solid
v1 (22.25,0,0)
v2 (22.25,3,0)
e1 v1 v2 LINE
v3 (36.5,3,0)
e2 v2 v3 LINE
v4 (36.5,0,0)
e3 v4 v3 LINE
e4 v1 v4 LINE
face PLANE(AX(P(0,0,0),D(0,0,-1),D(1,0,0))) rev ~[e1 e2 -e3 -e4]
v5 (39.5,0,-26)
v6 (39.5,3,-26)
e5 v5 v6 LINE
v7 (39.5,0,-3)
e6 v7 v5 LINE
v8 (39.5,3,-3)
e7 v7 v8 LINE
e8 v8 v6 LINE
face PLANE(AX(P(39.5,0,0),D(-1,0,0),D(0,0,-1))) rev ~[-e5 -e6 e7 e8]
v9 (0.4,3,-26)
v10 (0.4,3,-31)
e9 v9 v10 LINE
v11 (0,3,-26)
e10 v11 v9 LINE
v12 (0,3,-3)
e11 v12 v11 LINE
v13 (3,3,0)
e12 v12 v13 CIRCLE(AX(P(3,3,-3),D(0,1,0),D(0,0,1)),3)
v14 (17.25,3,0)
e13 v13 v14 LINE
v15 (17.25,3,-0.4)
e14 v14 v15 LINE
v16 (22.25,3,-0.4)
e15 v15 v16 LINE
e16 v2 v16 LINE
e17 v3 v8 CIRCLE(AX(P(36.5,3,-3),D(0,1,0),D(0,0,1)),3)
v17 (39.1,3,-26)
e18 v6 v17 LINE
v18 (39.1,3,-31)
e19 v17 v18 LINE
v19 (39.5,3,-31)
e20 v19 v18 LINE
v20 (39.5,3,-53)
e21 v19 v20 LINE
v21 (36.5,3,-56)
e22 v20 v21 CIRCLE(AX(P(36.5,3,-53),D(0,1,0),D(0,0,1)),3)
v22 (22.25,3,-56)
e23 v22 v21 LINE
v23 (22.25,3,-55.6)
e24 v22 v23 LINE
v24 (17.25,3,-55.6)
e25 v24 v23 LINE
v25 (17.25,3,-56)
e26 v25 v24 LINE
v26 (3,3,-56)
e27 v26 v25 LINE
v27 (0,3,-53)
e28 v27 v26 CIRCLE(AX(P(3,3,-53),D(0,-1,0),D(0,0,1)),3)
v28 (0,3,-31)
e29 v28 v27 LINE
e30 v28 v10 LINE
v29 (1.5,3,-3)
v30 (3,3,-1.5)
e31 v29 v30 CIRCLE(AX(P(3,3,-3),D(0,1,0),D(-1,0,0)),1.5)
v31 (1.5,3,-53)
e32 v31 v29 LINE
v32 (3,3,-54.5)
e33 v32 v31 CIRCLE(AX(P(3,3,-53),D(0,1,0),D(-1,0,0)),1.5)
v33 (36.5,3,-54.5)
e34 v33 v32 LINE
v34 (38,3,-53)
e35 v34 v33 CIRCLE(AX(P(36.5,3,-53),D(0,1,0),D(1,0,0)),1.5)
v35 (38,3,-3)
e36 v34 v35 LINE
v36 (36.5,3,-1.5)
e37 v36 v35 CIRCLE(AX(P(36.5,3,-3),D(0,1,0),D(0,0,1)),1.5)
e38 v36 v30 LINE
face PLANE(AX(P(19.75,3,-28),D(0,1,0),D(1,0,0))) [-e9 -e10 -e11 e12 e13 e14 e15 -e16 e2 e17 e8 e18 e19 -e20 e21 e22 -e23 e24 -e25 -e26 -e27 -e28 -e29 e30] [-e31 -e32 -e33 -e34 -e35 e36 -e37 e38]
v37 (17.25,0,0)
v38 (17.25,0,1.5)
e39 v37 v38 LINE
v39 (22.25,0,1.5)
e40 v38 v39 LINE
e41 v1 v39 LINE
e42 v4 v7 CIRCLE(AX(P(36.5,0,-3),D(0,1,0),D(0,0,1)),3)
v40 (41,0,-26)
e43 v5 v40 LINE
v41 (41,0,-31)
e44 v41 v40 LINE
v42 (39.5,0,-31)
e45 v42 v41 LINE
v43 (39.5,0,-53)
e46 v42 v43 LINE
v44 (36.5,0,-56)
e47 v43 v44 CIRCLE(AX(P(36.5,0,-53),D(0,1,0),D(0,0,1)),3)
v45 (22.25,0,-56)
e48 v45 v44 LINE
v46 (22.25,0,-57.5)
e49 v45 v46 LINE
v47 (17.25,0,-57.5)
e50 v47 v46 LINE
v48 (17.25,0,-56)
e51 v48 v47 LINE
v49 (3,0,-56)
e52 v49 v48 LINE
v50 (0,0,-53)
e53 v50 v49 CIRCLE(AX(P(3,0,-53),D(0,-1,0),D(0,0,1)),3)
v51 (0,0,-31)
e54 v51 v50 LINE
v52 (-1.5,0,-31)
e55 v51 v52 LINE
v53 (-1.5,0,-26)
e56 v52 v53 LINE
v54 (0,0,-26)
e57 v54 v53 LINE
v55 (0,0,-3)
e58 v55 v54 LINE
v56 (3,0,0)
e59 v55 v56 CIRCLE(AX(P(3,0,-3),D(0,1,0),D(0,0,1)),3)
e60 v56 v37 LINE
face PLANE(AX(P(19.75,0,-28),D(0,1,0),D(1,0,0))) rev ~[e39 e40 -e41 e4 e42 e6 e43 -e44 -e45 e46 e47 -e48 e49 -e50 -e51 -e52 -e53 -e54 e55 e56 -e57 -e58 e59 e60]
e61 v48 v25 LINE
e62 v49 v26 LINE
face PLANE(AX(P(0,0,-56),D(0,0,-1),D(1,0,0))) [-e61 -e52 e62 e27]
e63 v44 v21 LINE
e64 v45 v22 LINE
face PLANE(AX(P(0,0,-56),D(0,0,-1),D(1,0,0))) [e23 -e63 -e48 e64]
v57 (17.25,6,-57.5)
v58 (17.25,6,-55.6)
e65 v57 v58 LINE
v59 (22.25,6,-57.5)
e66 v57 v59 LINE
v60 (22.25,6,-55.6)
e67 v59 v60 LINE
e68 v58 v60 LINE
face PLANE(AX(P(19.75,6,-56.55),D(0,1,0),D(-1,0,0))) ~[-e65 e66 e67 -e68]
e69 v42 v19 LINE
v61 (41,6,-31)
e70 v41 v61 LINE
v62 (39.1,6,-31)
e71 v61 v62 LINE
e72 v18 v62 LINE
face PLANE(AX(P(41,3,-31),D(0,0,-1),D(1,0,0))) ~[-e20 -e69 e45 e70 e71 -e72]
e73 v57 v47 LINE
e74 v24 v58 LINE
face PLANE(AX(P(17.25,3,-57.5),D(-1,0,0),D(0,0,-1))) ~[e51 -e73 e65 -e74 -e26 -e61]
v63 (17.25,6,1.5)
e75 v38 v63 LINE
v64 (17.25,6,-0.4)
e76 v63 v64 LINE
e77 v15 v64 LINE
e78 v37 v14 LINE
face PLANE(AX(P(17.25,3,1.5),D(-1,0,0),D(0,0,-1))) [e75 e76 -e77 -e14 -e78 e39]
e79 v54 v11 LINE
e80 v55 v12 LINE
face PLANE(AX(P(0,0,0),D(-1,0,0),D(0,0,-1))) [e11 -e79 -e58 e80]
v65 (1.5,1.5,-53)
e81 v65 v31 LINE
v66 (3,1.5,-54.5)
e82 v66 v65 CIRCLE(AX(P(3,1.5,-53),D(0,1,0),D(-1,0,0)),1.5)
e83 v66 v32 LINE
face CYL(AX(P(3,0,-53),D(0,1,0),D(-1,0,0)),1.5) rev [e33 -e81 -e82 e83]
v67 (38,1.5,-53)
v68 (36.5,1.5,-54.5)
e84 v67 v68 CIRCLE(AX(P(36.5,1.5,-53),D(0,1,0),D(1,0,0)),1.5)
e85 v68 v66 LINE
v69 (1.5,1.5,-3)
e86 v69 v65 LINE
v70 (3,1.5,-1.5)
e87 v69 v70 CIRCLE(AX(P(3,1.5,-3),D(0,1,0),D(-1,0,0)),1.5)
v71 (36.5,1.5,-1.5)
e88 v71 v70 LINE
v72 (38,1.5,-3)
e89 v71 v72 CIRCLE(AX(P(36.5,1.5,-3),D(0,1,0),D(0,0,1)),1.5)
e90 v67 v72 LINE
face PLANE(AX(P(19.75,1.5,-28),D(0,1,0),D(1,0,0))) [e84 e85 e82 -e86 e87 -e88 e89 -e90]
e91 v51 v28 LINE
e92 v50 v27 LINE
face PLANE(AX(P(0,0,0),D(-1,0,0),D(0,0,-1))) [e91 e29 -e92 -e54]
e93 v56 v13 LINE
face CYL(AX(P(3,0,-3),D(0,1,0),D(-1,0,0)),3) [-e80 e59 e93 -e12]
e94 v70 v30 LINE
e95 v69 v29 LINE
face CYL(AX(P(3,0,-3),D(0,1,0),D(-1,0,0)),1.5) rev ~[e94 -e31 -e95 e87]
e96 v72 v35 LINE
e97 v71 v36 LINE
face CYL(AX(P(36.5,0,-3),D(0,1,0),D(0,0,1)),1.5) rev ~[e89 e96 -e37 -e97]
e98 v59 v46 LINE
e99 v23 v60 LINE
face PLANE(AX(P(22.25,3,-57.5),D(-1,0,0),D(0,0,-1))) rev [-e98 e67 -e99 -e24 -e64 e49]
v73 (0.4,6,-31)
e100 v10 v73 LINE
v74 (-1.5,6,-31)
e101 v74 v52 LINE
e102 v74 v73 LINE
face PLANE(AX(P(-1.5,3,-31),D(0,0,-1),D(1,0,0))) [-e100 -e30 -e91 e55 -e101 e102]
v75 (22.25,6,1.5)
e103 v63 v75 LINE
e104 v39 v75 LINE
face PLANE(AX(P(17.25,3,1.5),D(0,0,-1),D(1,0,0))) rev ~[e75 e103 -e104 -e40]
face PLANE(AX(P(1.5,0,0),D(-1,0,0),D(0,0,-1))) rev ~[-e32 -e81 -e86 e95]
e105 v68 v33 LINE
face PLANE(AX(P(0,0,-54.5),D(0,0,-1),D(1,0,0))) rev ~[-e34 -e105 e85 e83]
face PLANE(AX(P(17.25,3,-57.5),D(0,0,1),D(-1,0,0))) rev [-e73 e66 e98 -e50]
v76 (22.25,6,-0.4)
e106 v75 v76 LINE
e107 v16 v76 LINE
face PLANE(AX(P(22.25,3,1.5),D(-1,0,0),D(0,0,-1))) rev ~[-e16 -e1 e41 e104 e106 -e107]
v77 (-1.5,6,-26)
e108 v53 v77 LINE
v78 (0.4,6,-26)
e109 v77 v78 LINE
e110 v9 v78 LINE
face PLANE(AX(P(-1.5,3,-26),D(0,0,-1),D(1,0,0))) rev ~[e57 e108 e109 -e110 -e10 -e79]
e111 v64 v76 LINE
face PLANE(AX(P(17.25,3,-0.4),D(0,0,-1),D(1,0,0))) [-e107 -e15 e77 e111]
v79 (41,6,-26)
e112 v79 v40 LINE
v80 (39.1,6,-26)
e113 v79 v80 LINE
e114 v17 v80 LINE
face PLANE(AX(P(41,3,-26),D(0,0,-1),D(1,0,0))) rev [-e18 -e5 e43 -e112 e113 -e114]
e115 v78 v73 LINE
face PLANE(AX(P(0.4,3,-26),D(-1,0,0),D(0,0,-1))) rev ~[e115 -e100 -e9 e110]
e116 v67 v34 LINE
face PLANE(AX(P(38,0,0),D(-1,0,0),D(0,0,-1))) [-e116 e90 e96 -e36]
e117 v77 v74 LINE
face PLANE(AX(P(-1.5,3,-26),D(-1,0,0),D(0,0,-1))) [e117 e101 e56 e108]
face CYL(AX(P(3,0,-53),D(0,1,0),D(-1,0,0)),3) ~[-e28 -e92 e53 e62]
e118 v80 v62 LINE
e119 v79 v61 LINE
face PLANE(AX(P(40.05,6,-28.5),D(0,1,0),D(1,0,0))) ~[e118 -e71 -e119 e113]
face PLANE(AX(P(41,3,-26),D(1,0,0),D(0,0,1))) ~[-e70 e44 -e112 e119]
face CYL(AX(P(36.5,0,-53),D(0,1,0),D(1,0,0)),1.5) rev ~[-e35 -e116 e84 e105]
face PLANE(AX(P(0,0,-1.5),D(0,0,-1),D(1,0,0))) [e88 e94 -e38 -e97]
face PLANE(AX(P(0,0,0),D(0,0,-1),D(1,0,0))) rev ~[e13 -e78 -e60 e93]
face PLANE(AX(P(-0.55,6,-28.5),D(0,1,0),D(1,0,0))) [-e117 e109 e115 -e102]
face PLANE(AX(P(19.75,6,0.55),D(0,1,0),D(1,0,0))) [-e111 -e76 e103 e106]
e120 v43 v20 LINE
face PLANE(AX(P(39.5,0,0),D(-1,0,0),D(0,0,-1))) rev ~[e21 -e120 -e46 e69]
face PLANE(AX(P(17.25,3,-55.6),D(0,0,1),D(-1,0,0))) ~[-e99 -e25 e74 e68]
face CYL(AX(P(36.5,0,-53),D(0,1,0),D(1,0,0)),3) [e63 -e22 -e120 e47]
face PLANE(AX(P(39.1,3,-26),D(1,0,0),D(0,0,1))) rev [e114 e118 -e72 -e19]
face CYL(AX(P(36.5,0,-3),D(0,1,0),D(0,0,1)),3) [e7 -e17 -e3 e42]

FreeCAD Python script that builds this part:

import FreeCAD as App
import Part
import Sketcher

V = App.Vector
Q = App.Units.Quantity


def edges_at(feature, points):
    """Names of the edges that pass closest to the given points."""
    edges = feature.Shape.Edges
    near = lambda p: min(range(len(edges)), key=lambda i: edges[i].distToShape(Part.Vertex(*p))[0])
    return sorted({f"Edge{near(p) + 1}" for p in points})


def faces_at(feature, points):
    """Names of the faces that lie closest to the given points."""
    faces = feature.Shape.Faces
    near = lambda p: min(range(len(faces)), key=lambda i: faces[i].distToShape(Part.Vertex(*p))[0])
    return sorted({f"Face{near(p) + 1}" for p in points})

doc = App.newDocument("Part")
body = doc.addObject("PartDesign::Body", "Body")

# Sketch on XZ plane
sketch1 = body.newObject("Sketcher::SketchObject", "Sketch")
sketch1.AttachmentSupport = (doc.getObject("XZ_Plane"), [""])
sketch1.MapMode = "FlatFace"
sketch1.addGeometry([
    Part.LineSegment(V(0, -56, 0), V(0, 0, 0)),
    Part.LineSegment(V(0, 0, 0), V(40, 0, 0)),
    Part.LineSegment(V(40, 0, 0), V(40, -56, 0)),
    Part.LineSegment(V(40, -56, 0), V(0, -56, 0)),
], False)
sketch1.addConstraint([
    Sketcher.Constraint("Coincident", 0, 2, 1, 1),
    Sketcher.Constraint("Coincident", 1, 2, 2, 1),
    Sketcher.Constraint("Coincident", 2, 2, 3, 1),
    Sketcher.Constraint("Coincident", 3, 2, 0, 1),
    Sketcher.Constraint("Vertical", 0),
    Sketcher.Constraint("Horizontal", 1),
    Sketcher.Constraint("Vertical", 2),
    Sketcher.Constraint("Horizontal", 3),
    Sketcher.Constraint("Coincident", 0, 2, -1, 1),
    Sketcher.Constraint("DistanceY", 0, 1, 0, 2, Q("56 mm")),
    Sketcher.Constraint("DistanceX", 1, 1, 1, 2, Q("39.5 mm")),
])
pad1 = body.newObject("PartDesign::Pad", "Pad")
pad1.Profile = sketch1
pad1.Length = 3
pad1.Reversed = True
doc.recompute()

fillet = body.newObject("PartDesign::Fillet", "Fillet")
fillet.Base = (pad1, edges_at(pad1, [
    (0, 1.5, -56),
    (39.5, 1.5, -56),
    (39.5, 1.5, 0),
    (0, 1.5, 0),
]))
fillet.Radius = 3
doc.recompute()

thickness = body.newObject("PartDesign::Thickness", "Thickness")
thickness.Base = (fillet, faces_at(fillet, [(19.75, 3, -28)]))
thickness.Value = 1.5
thickness.Reversed = True
thickness.Join = "Intersection"

# Sketch on YZ plane
sketch2 = body.newObject("Sketcher::SketchObject", "Sketch001")
sketch2.AttachmentSupport = (doc.getObject("YZ_Plane"), [""])
sketch2.MapMode = "FlatFace"
sketch2.addGeometry([
    Part.LineSegment(V(3, -31, 0), V(0, -31, 0)),
    Part.LineSegment(V(0, -31, 0), V(0, -26, 0)),
    Part.LineSegment(V(0, -26, 0), V(3, -26, 0)),
    Part.LineSegment(V(3, -26, 0), V(3, -31, 0)),
], False)
sketch2.addConstraint([
    Sketcher.Constraint("Coincident", 0, 2, 1, 1),
    Sketcher.Constraint("Coincident", 1, 2, 2, 1),
    Sketcher.Constraint("Coincident", 2, 2, 3, 1),
    Sketcher.Constraint("Coincident", 3, 2, 0, 1),
    Sketcher.Constraint("Horizontal", 0),
    Sketcher.Constraint("Vertical", 1),
    Sketcher.Constraint("Horizontal", 2),
    Sketcher.Constraint("Vertical", 3),
    Sketcher.Constraint("PointOnObject", 0, 2, -2),
    Sketcher.Constraint("DistanceX", 0, 2, 0, 1, Q("3 mm")),
    Sketcher.Constraint("DistanceY", 1, 1, 1, 2, Q("5 mm")),
    Sketcher.Constraint("DistanceY", 0, 2, -1, 1, Q("31 mm")),
])
pad2 = body.newObject("PartDesign::Pad", "Pad001")
pad2.Profile = sketch2
pad2.Length = 1.5
pad2.Reversed = True

# Sketch on XZ plane
sketch3 = body.newObject("Sketcher::SketchObject", "Sketch002")
sketch3.AttachmentSupport = (doc.getObject("XZ_Plane"), [""])
sketch3.MapMode = "FlatFace"
sketch3.AttachmentOffset = App.Placement(V(0, 0, -3), App.Rotation())
sketch3.addGeometry([
    Part.LineSegment(V(-1.5, -31, 0), V(-1.5, -26, 0)),
    Part.LineSegment(V(-1.5, -26, 0), V(0.4, -26, 0)),
    Part.LineSegment(V(0.4, -26, 0), V(0.4, -31, 0)),
    Part.LineSegment(V(0.4, -31, 0), V(-1.5, -31, 0)),
], False)
sketch3.addConstraint([
    Sketcher.Constraint("Coincident", 0, 2, 1, 1),
    Sketcher.Constraint("Coincident", 1, 2, 2, 1),
    Sketcher.Constraint("Coincident", 2, 2, 3, 1),
    Sketcher.Constraint("Coincident", 3, 2, 0, 1),
    Sketcher.Constraint("Vertical", 0),
    Sketcher.Constraint("Horizontal", 1),
    Sketcher.Constraint("Vertical", 2),
    Sketcher.Constraint("Horizontal", 3),
    Sketcher.Constraint("DistanceY", 0, 1, 0, 2, Q("5 mm")),
    Sketcher.Constraint("DistanceX", 1, 1, 1, 2, Q("1.9 mm")),
    Sketcher.Constraint("DistanceY", 0, 2, -1, 1, Q("26 mm")),
    Sketcher.Constraint("DistanceX", 0, 2, -1, 1, Q("1.5 mm")),
])
pad3 = body.newObject("PartDesign::Pad", "Pad002")
pad3.Profile = sketch3
pad3.Length = 3
pad3.Reversed = True

# Sketch on XY plane
sketch4 = body.newObject("Sketcher::SketchObject", "Sketch003")
sketch4.AttachmentSupport = (doc.getObject("XY_Plane"), [""])
sketch4.MapMode = "FlatFace"
sketch4.addGeometry([
    Part.LineSegment(V(17.2, 3, 0), V(17.2, 0, 0)),
    Part.LineSegment(V(17.2, 0, 0), V(22.2, 0, 0)),
    Part.LineSegment(V(22.2, 0, 0), V(22.2, 3, 0)),
    Part.LineSegment(V(22.2, 3, 0), V(17.2, 3, 0)),
], False)
sketch4.addConstraint([
    Sketcher.Constraint("Coincident", 0, 2, 1, 1),
    Sketcher.Constraint("Coincident", 1, 2, 2, 1),
    Sketcher.Constraint("Coincident", 2, 2, 3, 1),
    Sketcher.Constraint("Coincident", 3, 2, 0, 1),
    Sketcher.Constraint("Vertical", 0),
    Sketcher.Constraint("Horizontal", 1),
    Sketcher.Constraint("Vertical", 2),
    Sketcher.Constraint("Horizontal", 3),
    Sketcher.Constraint("PointOnObject", 0, 2, -1),
    Sketcher.Constraint("DistanceX", 1, 1, 1, 2, Q("5 mm")),
    Sketcher.Constraint("DistanceY", 0, 2, 0, 1, Q("3 mm")),
    Sketcher.Constraint("DistanceX", -1, 1, 0, 2, Q("17.25 mm")),
])
pad4 = body.newObject("PartDesign::Pad", "Pad003")
pad4.Profile = sketch4
pad4.Length = 1.5

# Sketch on XZ plane
sketch5 = body.newObject("Sketcher::SketchObject", "Sketch004")
sketch5.AttachmentSupport = (doc.getObject("XZ_Plane"), [""])
sketch5.MapMode = "FlatFace"
sketch5.AttachmentOffset = App.Placement(V(0, 0, -3), App.Rotation())
sketch5.addGeometry([
    Part.LineSegment(V(17.2, -0.4, 0), V(17.2, 1.5, 0)),
    Part.LineSegment(V(17.2, 1.5, 0), V(22.2, 1.5, 0)),
    Part.LineSegment(V(22.2, 1.5, 0), V(22.2, -0.4, 0)),
    Part.LineSegment(V(22.2, -0.4, 0), V(17.2, -0.4, 0)),
], False)
sketch5.addConstraint([
    Sketcher.Constraint("Coincident", 0, 2, 1, 1),
    Sketcher.Constraint("Coincident", 1, 2, 2, 1),
    Sketcher.Constraint("Coincident", 2, 2, 3, 1),
    Sketcher.Constraint("Coincident", 3, 2, 0, 1),
    Sketcher.Constraint("Vertical", 0),
    Sketcher.Constraint("Horizontal", 1),
    Sketcher.Constraint("Vertical", 2),
    Sketcher.Constraint("Horizontal", 3),
    Sketcher.Constraint("DistanceX", 1, 1, 1, 2, Q("5 mm")),
    Sketcher.Constraint("DistanceY", 0, 1, 0, 2, Q("1.9 mm")),
    Sketcher.Constraint("DistanceY", -1, 1, 0, 2, Q("1.5 mm")),
    Sketcher.Constraint("DistanceX", -1, 1, 0, 2, Q("17.25 mm")),
])
pad5 = body.newObject("PartDesign::Pad", "Pad004")
pad5.Profile = sketch5
pad5.Length = 3
pad5.Reversed = True
doc.recompute()

datumplane = body.newObject("PartDesign::Plane", "DatumPlane")
datumplane.AttachmentSupport = (doc.getObject("YZ_Plane"), [""])
datumplane.MapMode = "FlatFace"
datumplane.AttachmentOffset = App.Placement(V(0, 0, 19.75), App.Rotation())
mirrored = body.newObject("PartDesign::Mirrored", "Mirrored")
mirrored.Originals = [pad2, pad3]
mirrored.MirrorPlane = (datumplane, [""])
body.Tip = mirrored
doc.recompute()

datumplane2 = body.newObject("PartDesign::Plane", "DatumPlane001")
datumplane2.AttachmentSupport = (doc.getObject("XY_Plane"), [""])
datumplane2.MapMode = "FlatFace"
datumplane2.AttachmentOffset = App.Placement(V(0, 0, -28), App.Rotation())
mirrored2 = body.newObject("PartDesign::Mirrored", "Mirrored001")
mirrored2.Originals = [pad4, pad5]
mirrored2.MirrorPlane = (datumplane2, [""])
body.Tip = mirrored2

doc.recompute()
